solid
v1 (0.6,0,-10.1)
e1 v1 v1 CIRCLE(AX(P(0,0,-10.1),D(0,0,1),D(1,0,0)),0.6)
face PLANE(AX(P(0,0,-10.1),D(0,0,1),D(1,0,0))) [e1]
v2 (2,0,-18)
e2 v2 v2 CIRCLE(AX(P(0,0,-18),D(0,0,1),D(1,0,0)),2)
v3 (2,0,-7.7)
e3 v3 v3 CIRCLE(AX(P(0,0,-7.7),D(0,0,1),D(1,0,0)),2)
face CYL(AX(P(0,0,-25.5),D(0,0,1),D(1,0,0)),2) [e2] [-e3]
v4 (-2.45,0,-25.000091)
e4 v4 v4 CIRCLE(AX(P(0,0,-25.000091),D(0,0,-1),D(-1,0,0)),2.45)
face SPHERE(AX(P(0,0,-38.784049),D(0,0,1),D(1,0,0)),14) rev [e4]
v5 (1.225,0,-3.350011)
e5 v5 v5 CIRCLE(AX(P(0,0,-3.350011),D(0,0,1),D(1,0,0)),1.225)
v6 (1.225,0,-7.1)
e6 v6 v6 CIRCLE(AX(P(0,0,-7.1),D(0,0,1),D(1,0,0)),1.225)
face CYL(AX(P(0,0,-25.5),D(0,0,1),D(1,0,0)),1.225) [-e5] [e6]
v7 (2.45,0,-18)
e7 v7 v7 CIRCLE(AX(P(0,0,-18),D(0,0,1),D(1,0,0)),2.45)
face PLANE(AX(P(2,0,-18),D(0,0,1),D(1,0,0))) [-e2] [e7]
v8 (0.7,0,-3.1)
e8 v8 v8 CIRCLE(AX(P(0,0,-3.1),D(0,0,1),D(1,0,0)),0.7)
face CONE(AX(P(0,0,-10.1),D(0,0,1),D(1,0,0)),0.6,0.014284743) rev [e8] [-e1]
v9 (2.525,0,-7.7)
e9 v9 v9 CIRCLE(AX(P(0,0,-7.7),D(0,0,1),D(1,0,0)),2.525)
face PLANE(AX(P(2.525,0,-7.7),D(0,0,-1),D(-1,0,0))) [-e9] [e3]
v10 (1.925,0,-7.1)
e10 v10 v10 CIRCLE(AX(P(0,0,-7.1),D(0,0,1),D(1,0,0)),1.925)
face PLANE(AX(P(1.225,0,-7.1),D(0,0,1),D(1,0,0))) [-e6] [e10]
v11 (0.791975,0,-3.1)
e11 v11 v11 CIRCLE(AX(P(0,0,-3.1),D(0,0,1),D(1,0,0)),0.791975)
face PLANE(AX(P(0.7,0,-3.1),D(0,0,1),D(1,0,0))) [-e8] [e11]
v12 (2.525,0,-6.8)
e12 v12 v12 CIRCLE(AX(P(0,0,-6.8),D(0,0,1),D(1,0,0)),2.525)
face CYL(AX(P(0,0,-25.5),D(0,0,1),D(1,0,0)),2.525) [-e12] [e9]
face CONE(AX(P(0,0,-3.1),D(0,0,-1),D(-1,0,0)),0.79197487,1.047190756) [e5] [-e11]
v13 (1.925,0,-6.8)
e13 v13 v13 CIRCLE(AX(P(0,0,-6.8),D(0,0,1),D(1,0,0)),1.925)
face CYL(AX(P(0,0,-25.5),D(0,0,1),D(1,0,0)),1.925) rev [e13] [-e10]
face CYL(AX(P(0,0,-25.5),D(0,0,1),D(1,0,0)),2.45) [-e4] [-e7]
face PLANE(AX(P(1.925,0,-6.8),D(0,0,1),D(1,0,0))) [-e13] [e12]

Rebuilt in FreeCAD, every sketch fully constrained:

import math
import FreeCAD as App
import Part
import Sketcher

V = App.Vector

doc = App.newDocument("Part")
body = doc.addObject("PartDesign::Body", "Body")

# Sketch on XZ plane
sketch1 = body.newObject("Sketcher::SketchObject", "Sketch")
sketch1.AttachmentSupport = (doc.getObject("XZ_Plane"), [""])
sketch1.MapMode = "FlatFace"
sketch1.addGeometry([
    Part.LineSegment(V(0, -24.78, 0), V(0, -10.1, 0)),  # 0
    Part.LineSegment(V(0, -10.1, 0), V(0.6, -10.1, 0)),  # 1
    Part.LineSegment(V(0.6, -10.1, 0), V(0.7, -3.1, 0)),  # 2
    Part.LineSegment(V(0.7, -3.1, 0), V(0.79, -3.1, 0)),  # 3
    Part.LineSegment(V(0.79, -3.1, 0), V(1.23, -3.35, 0)),  # 4
    Part.LineSegment(V(1.23, -3.35, 0), V(1.23, -7.1, 0)),  # 5
    Part.LineSegment(V(1.23, -7.1, 0), V(1.93, -7.1, 0)),  # 6
    Part.LineSegment(V(1.93, -7.1, 0), V(1.93, -6.8, 0)),  # 7
    Part.LineSegment(V(1.93, -6.8, 0), V(2.52, -6.8, 0)),  # 8
    Part.LineSegment(V(2.52, -6.8, 0), V(2.52, -7.7, 0)),  # 9
    Part.LineSegment(V(2.52, -7.7, 0), V(2, -7.7, 0)),  # 10
    Part.LineSegment(V(2, -7.7, 0), V(2, -18, 0)),  # 11
    Part.LineSegment(V(2, -18, 0), V(2.45, -18, 0)),  # 12
    Part.LineSegment(V(2.45, -18, 0), V(2.45, -24, 0)),  # 13
    Part.LineSegment(V(2.45, -24, 0), V(4.2, -24, 0)),  # 14
    Part.LineSegment(V(4.2, -24, 0), V(4.2, -18, 0)),  # 15
    Part.LineSegment(V(4.2, -18, 0), V(5, -18, 0)),  # 16
    Part.LineSegment(V(5, -18, 0), V(5, -25, 0)),  # 17
    Part.ArcOfCircle(Part.Circle(V(4.5, -25, 0), V(0, 0, 1), 0.5), math.radians(-108), math.radians(0)),  # 18
    Part.ArcOfCircle(Part.Circle(V(0, -38.78, 0), V(0, 0, 1), 14), math.radians(71.92), math.radians(90)),  # 19
], False)
sketch1.addConstraint([
    Sketcher.Constraint("Coincident", 0, 2, 1, 1),
    Sketcher.Constraint("Coincident", 1, 2, 2, 1),
    Sketcher.Constraint("Coincident", 2, 2, 3, 1),
    Sketcher.Constraint("Coincident", 3, 2, 4, 1),
    Sketcher.Constraint("Coincident", 4, 2, 5, 1),
    Sketcher.Constraint("Coincident", 5, 2, 6, 1),
    Sketcher.Constraint("Coincident", 6, 2, 7, 1),
    Sketcher.Constraint("Coincident", 7, 2, 8, 1),
    Sketcher.Constraint("Coincident", 8, 2, 9, 1),
    Sketcher.Constraint("Coincident", 9, 2, 10, 1),
    Sketcher.Constraint("Coincident", 10, 2, 11, 1),
    Sketcher.Constraint("Coincident", 11, 2, 12, 1),
    Sketcher.Constraint("Coincident", 12, 2, 13, 1),
    Sketcher.Constraint("Coincident", 13, 2, 14, 1),
    Sketcher.Constraint("Coincident", 14, 2, 15, 1),
    Sketcher.Constraint("Coincident", 15, 2, 16, 1),
    Sketcher.Constraint("Coincident", 16, 2, 17, 1),
    Sketcher.Constraint("Tangent", 17, 2, 18, 2),
    Sketcher.Constraint("Tangent", 18, 1, 19, 1),
    Sketcher.Constraint("Coincident", 19, 2, 0, 1),
    Sketcher.Constraint("Vertical", 0),
    Sketcher.Constraint("Horizontal", 1),
    Sketcher.Constraint("Horizontal", 3),
    Sketcher.Constraint("Vertical", 5),
    Sketcher.Constraint("Horizontal", 6),
    Sketcher.Constraint("Vertical", 7),
    Sketcher.Constraint("Horizontal", 8),
    Sketcher.Constraint("Vertical", 9),
    Sketcher.Constraint("Horizontal", 10),
    Sketcher.Constraint("Vertical", 11),
    Sketcher.Constraint("Horizontal", 12),
    Sketcher.Constraint("Vertical", 13),
    Sketcher.Constraint("Horizontal", 14),
    Sketcher.Constraint("Vertical", 15),
    Sketcher.Constraint("Horizontal", 16),
    Sketcher.Constraint("Vertical", 17),
    Sketcher.Constraint("PointOnObject", 19, 3, -2),
    Sketcher.Constraint("PointOnObject", 0, 2, -2),
    Sketcher.Constraint("Horizontal", 12, 2, 15, 2),
    Sketcher.Constraint("Equal", 1, 8),
    Sketcher.Constraint("Radius", 19, 14.0),
    Sketcher.Constraint("Radius", 18, 0.5),
    Sketcher.Constraint("DistanceY", 13, 2, 13, 1, 6.0),
    Sketcher.Constraint("DistanceY", 17, 2, 17, 1, 7.0),
    Sketcher.Constraint("DistanceX", 1, 1, 1, 2, 0.6),
    Sketcher.Constraint("DistanceX", 6, 1, 6, 2, 0.7),
    Sketcher.Constraint("DistanceX", 16, 1, 16, 2, 0.8),
    Sketcher.Constraint("DistanceY", 7, 1, 7, 2, 0.3),
    Sketcher.Constraint("DistanceY", 9, 2, 9, 1, 0.9),
    Sketcher.Constraint("DistanceY", 11, 2, 11, 1, 10.3),
    Sketcher.Constraint("DistanceY", 18, 3, -1, 1, 25.0),
    Sketcher.Constraint("DistanceX", -1, 1, 10, 2, 2.0),
    Sketcher.Constraint("DistanceX", -1, 1, 16, 2, 5.0),
    Sketcher.Constraint("DistanceY", 1, 2, 2, 2, 7.0),
    Sketcher.Constraint("DistanceY", 1, 2, 5, 2, 3.0),
    Sketcher.Constraint("DistanceX", 12, 1, 12, 2, 0.45),
    Sketcher.Constraint("DistanceX", -1, 1, 2, 2, 0.7),
    Sketcher.Constraint("DistanceX", 10, 2, 10, 1, 0.525),
    Sketcher.Constraint("DistanceY", 5, 2, 5, 1, 3.749989),
    Sketcher.Constraint("DistanceX", 3, 1, 3, 2, 0.091975),
])
revolution = body.newObject("PartDesign::Revolution", "Revolution")
revolution.Profile = sketch1
revolution.ReferenceAxis = (sketch1, ["V_Axis"])
revolution.Angle = 360

# Sketch on XY plane
sketch2 = body.newObject("Sketcher::SketchObject", "Sketch001")
sketch2.AttachmentSupport = (doc.getObject("XY_Plane"), [""])
sketch2.MapMode = "FlatFace"
sketch2.AttachmentOffset = App.Placement(V(0, 0, -28), App.Rotation())
sketch2.addGeometry([
    Part.Circle(V(0, 0, 0), V(0, 0, 1), 5),
    Part.Circle(V(0, 0, 0), V(0, 0, 1), 2.5),
], False)
sketch2.addConstraint([
    Sketcher.Constraint("Coincident", 0, 3, -1, 1),
    Sketcher.Constraint("Coincident", 1, 3, -1, 1),
    Sketcher.Constraint("Diameter", 0, 10.0),
    Sketcher.Constraint("Diameter", 1, 4.9),
])
pocket1 = body.newObject("PartDesign::Pocket", "Pocket")
pocket1.Profile = sketch2
pocket1.Length = 10
pocket1.Reversed = True

doc.recompute()
